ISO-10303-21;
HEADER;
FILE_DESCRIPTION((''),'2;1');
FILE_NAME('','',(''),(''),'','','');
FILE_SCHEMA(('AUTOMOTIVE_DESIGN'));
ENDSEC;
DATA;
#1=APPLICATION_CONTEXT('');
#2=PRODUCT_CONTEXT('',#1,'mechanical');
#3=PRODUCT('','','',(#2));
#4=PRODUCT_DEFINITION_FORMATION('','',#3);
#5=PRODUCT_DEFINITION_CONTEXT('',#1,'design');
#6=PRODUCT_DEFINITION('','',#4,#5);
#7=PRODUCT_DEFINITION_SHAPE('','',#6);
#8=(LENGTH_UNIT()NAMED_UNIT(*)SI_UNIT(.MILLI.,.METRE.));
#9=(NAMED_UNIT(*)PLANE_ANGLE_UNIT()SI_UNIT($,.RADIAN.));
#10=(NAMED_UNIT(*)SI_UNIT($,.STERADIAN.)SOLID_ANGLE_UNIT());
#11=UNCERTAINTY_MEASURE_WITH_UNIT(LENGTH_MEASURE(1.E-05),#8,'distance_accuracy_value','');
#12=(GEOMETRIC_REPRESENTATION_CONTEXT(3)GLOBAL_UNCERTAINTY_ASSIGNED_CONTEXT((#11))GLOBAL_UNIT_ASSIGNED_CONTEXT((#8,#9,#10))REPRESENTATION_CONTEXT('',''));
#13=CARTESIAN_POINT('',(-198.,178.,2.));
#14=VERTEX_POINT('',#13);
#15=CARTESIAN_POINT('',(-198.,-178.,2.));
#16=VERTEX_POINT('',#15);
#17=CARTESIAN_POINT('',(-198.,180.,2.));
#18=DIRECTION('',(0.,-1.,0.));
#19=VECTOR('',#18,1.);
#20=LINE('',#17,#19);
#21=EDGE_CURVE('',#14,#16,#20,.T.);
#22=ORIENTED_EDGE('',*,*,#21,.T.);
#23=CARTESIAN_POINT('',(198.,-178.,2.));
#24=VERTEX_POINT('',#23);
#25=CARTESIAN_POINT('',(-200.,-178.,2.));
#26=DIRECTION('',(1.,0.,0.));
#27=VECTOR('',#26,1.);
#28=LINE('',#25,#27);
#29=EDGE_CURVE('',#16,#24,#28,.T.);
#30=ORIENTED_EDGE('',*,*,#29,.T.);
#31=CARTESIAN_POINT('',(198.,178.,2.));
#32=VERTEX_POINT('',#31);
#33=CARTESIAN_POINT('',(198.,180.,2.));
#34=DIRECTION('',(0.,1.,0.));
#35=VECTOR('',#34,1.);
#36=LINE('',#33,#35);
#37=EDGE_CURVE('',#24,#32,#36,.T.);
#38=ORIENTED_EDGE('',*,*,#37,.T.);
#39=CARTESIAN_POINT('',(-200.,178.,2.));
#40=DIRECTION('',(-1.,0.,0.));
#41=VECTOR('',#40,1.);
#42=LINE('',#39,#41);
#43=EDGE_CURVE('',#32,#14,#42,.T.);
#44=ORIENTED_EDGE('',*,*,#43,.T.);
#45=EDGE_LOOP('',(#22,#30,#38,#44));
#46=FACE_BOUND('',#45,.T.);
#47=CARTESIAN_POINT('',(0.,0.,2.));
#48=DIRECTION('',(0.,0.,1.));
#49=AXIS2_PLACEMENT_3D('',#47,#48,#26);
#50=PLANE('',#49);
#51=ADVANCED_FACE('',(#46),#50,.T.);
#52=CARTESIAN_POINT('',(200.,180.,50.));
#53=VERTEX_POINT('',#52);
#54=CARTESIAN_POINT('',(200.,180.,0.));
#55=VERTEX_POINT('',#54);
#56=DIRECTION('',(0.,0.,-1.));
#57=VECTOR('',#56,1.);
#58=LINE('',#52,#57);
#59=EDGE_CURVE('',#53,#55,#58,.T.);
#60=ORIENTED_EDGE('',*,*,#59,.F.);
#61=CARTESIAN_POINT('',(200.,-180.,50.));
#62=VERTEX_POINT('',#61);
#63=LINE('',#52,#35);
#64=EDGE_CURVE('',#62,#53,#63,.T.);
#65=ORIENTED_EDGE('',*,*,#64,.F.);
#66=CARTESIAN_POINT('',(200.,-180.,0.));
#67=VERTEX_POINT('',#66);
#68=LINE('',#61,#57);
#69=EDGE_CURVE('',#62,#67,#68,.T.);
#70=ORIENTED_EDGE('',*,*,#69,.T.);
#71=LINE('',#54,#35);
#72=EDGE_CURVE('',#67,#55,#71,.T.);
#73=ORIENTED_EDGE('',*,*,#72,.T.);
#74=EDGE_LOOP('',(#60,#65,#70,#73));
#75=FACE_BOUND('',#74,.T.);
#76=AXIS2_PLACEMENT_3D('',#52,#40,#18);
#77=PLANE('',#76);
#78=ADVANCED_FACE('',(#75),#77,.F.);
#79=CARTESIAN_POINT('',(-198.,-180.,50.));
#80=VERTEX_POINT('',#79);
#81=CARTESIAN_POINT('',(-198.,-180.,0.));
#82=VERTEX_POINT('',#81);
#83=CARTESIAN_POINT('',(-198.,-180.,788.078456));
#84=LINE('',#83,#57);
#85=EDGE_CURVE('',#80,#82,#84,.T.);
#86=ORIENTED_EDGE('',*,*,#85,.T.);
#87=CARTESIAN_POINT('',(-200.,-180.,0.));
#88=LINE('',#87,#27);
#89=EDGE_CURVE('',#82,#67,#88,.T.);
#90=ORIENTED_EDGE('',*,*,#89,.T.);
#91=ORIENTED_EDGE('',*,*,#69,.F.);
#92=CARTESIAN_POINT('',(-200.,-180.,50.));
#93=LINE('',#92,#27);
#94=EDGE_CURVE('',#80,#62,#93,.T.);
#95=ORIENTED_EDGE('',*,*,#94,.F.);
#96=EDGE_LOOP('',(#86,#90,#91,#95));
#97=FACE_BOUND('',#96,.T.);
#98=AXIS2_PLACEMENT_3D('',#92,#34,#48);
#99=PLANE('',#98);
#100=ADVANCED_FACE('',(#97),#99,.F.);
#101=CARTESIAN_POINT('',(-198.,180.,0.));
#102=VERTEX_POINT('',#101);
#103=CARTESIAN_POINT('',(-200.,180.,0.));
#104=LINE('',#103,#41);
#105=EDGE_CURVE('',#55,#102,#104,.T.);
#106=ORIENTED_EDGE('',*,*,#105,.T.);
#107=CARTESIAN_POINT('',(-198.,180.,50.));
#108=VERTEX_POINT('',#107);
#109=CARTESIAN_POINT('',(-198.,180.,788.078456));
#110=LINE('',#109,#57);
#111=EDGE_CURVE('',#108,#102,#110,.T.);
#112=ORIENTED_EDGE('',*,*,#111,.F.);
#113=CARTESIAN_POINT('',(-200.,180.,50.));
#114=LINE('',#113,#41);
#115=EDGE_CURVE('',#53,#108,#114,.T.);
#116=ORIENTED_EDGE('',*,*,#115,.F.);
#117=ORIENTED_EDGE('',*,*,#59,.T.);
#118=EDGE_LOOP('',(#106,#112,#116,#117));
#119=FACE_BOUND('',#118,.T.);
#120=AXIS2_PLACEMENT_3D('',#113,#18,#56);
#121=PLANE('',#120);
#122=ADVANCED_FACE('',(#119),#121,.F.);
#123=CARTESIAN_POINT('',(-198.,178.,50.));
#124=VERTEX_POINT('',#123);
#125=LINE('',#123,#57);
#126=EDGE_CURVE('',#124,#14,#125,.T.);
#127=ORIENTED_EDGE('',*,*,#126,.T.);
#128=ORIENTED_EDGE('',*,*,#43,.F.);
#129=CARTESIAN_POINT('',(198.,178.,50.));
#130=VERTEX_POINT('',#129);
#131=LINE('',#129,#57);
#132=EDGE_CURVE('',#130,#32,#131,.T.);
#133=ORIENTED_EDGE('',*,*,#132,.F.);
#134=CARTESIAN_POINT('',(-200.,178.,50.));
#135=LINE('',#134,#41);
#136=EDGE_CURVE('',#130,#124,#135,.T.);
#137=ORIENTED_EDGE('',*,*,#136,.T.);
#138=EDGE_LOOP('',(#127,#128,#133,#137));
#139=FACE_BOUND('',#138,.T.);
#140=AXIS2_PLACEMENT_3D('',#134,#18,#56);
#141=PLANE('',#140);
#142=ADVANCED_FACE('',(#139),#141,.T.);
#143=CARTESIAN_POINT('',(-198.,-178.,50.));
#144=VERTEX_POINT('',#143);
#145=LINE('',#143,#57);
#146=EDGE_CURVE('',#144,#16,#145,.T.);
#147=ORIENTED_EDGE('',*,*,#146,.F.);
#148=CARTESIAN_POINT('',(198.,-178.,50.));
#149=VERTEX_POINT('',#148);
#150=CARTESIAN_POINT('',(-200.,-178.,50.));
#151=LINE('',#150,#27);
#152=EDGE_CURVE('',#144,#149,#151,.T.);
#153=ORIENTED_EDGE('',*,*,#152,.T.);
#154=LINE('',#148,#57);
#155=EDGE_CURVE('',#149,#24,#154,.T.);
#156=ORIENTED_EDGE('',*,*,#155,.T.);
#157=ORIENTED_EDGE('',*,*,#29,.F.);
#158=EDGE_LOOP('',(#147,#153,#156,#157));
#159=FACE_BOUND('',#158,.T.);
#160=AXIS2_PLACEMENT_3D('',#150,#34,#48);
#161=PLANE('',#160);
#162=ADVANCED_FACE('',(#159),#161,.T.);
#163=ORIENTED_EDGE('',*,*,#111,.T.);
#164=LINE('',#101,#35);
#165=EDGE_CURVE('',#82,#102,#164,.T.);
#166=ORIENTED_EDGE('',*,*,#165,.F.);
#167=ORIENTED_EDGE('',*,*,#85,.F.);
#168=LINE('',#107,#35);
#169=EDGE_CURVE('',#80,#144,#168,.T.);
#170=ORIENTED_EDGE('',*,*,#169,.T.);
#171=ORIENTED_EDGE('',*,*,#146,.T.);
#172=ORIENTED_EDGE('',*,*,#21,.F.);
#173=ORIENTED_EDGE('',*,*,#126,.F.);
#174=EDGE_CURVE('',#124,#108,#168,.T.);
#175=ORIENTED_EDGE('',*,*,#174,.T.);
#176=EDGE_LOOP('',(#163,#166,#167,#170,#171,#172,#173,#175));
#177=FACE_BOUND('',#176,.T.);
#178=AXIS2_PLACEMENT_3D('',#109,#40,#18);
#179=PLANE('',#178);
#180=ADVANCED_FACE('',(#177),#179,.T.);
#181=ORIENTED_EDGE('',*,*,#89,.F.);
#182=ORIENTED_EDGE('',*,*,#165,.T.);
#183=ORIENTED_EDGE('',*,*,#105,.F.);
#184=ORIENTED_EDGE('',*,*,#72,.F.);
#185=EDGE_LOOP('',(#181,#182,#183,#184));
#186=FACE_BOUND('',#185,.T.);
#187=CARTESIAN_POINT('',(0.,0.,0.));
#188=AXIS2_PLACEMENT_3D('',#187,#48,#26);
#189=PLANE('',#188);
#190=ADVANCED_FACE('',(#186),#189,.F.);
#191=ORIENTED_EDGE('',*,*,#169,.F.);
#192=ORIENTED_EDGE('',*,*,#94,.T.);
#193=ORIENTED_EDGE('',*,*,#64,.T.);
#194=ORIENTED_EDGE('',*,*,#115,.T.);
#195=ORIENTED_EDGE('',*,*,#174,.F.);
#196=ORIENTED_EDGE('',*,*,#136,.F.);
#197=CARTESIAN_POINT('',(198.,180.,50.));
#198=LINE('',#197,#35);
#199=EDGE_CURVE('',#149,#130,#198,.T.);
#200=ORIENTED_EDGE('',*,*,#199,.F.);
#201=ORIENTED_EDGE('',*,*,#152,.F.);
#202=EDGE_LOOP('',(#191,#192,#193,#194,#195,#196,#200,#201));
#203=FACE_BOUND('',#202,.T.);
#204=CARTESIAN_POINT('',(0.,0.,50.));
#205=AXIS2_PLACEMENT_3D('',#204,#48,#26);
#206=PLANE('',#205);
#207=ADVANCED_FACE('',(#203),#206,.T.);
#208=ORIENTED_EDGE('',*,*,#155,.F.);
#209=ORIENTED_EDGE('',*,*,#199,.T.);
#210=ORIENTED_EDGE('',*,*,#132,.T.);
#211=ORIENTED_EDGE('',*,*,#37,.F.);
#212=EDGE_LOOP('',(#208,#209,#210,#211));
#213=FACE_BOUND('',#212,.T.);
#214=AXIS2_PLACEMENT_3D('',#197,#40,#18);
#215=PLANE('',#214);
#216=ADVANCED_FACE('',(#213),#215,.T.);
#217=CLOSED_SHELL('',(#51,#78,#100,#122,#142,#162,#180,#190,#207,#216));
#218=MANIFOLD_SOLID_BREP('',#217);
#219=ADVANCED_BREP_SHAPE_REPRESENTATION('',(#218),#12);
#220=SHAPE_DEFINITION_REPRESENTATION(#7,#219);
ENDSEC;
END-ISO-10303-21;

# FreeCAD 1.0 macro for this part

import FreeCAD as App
import Part
import Sketcher


def faces_at(feature, points):
    """Names of the faces that lie closest to the given points."""
    faces = feature.Shape.Faces
    near = lambda p: min(range(len(faces)), key=lambda i: faces[i].distToShape(Part.Vertex(*p))[0])
    return sorted({f"Face{near(p) + 1}" for p in points})

doc = App.newDocument("Part")
body = doc.addObject("PartDesign::Body", "Body")

# Sketch on XY plane
sketch1 = doc.addObject("Sketcher::SketchObject", "Sketch")
body.addObject(sketch1)
sketch1.AttachmentSupport = (doc.XY_Plane, [""])
sketch1.MapMode = "FlatFace"
sketch1.addGeometry([
    Part.LineSegment(App.Vector(-200, 180, 0), App.Vector(-200, -180, 0)),
    Part.LineSegment(App.Vector(-200, -180, 0), App.Vector(200, -180, 0)),
    Part.LineSegment(App.Vector(200, -180, 0), App.Vector(200, 180, 0)),
    Part.LineSegment(App.Vector(200, 180, 0), App.Vector(-200, 180, 0)),
], False)
sketch1.addConstraint([
    Sketcher.Constraint("Coincident", 0, 2, 1, 1),
    Sketcher.Constraint("Coincident", 1, 2, 2, 1),
    Sketcher.Constraint("Coincident", 2, 2, 3, 1),
    Sketcher.Constraint("Coincident", 3, 2, 0, 1),
    Sketcher.Constraint("Vertical", 0),
    Sketcher.Constraint("Horizontal", 1),
    Sketcher.Constraint("Vertical", 2),
    Sketcher.Constraint("Horizontal", 3),
    Sketcher.Constraint("Symmetric", 0, 2, 2, 2, -1, 1),
    Sketcher.Constraint("DistanceX", 1, 1, 1, 2, 400.0),
    Sketcher.Constraint("DistanceY", 0, 2, 0, 1, 360.0),
])
pad1 = doc.addObject("PartDesign::Pad", "Pad")
body.addObject(pad1)
pad1.Profile = sketch1
pad1.Length = 50
doc.recompute()

thickness = doc.addObject("PartDesign::Thickness", "Thickness")
body.addObject(thickness)
thickness.Base = (pad1, faces_at(pad1, [(0, 0, 50)]))
thickness.Value = 2
thickness.Reversed = True
thickness.Join = "Intersection"

# Sketch on XY plane
sketch2 = doc.addObject("Sketcher::SketchObject", "Sketch001")
body.addObject(sketch2)
sketch2.AttachmentSupport = (doc.XY_Plane, [""])
sketch2.MapMode = "FlatFace"
sketch2.AttachmentOffset = App.Placement(App.Vector(0, 0, 50), App.Rotation())
sketch2.addGeometry([
    Part.LineSegment(App.Vector(909, -180, 0), App.Vector(-198, -180, 0)),  # 0
    Part.LineSegment(App.Vector(-198, -180, 0), App.Vector(-198, 180, 0)),  # 1
    Part.LineSegment(App.Vector(-198, 180, 0), App.Vector(-200, 180, 0)),  # 2
    Part.LineSegment(App.Vector(-200, 180, 0), App.Vector(-200, -1266.3, 0)),  # 3
    Part.LineSegment(App.Vector(-200, -1266.3, 0), App.Vector(1320.2, -2818.4, 0)),  # 4
    Part.LineSegment(App.Vector(1320.2, -2818.4, 0), App.Vector(2429.3, -1732.1, 0)),  # 5
    Part.LineSegment(App.Vector(2429.3, -1732.1, 0), App.Vector(909, -180, 0)),  # 6
], False)
sketch2.addConstraint([
    Sketcher.Constraint("Coincident", 0, 2, 1, 1),
    Sketcher.Constraint("Coincident", 1, 2, 2, 1),
    Sketcher.Constraint("Coincident", 2, 2, 3, 1),
    Sketcher.Constraint("Coincident", 3, 2, 4, 1),
    Sketcher.Constraint("Coincident", 4, 2, 5, 1),
    Sketcher.Constraint("Coincident", 5, 2, 6, 1),
    Sketcher.Constraint("Coincident", 6, 2, 0, 1),
    Sketcher.Constraint("Horizontal", 0),
    Sketcher.Constraint("Vertical", 1),
    Sketcher.Constraint("Horizontal", 2),
    Sketcher.Constraint("Vertical", 3),
    Sketcher.Constraint("Perpendicular", 4, 5),
    Sketcher.Constraint("Perpendicular", 5, 6),
    Sketcher.Constraint("Equal", 4, 6),
    Sketcher.Constraint("DistanceX", 2, 2, 2, 1, 2.0),
    Sketcher.Constraint("DistanceY", 1, 1, 1, 2, 360.0),
    Sketcher.Constraint("DistanceX", 0, 2, -1, 1, 198.0),
    Sketcher.Constraint("DistanceY", 0, 2, -1, 1, 180.0),
    Sketcher.Constraint("DistanceX", 0, 2, 0, 1, 1107.035447),
    Sketcher.Constraint("DistanceY", 3, 2, 3, 1, 1446.289924),
    Sketcher.Constraint("DistanceX", -1, 1, 5, 2, 2429.28292),
])
pocket1 = doc.addObject("PartDesign::Pocket", "Pocket")
body.addObject(pocket1)
pocket1.Profile = sketch2
pocket1.Type = "ThroughAll"
pocket1.Midplane = True

doc.recompute()
